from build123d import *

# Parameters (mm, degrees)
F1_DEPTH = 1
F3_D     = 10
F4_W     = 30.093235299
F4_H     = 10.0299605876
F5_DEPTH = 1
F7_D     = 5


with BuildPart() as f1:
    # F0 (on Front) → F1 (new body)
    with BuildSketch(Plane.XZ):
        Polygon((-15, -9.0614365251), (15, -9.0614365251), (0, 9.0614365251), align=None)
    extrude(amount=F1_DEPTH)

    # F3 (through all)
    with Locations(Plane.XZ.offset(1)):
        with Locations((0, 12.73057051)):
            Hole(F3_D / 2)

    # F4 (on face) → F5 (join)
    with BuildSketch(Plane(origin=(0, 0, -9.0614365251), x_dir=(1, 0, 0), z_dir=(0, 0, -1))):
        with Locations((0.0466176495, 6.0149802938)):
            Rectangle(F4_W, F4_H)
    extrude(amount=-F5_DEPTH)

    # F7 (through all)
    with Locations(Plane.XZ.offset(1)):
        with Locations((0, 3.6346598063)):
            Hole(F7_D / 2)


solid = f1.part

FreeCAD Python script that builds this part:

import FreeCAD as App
import Part
import Sketcher

doc = App.newDocument("Part")
body = doc.addObject("PartDesign::Body", "Body")

# Sketch on XZ plane
sketch1 = body.newObject("Sketcher::SketchObject", "Sketch")
sketch1.AttachmentSupport = (doc.getObject("XZ_Plane"), [""])
sketch1.MapMode = "FlatFace"
sketch1.addGeometry(Part.LineSegment(App.Vector(-15, -9, 0), App.Vector(15, -9, 0)), False)
sketch1.addGeometry(Part.LineSegment(App.Vector(15, -9, 0), App.Vector(0, 9, 0)), False)
sketch1.addGeometry(Part.LineSegment(App.Vector(0, 9, 0), App.Vector(-15, -9, 0)), False)
sketch1.addConstraint(Sketcher.Constraint("Coincident", 0, 2, 1, 1))
sketch1.addConstraint(Sketcher.Constraint("Coincident", 1, 2, 2, 1))
sketch1.addConstraint(Sketcher.Constraint("Coincident", 2, 2, 0, 1))
sketch1.addConstraint(Sketcher.Constraint("Horizontal", 0))
sketch1.addConstraint(Sketcher.Constraint("PointOnObject", 1, 2, -2))
sketch1.addConstraint(Sketcher.Constraint("Equal", 1, 2))
sketch1.addConstraint(Sketcher.Constraint("DistanceX", 0, 1, 0, 2, 30.0))
sketch1.addConstraint(Sketcher.Constraint("Distance", 1, 23.525274))
sketch1.addConstraint(Sketcher.Constraint("DistanceY", 0, 2, -1, 1, 9.061437))
pad1 = body.newObject("PartDesign::Pad", "Pad")
pad1.Profile = sketch1
pad1.Length = 1

# Sketch on XZ plane
sketch2 = body.newObject("Sketcher::SketchObject", "Sketch001")
sketch2.AttachmentSupport = (doc.getObject("XZ_Plane"), [""])
sketch2.MapMode = "FlatFace"
sketch2.AttachmentOffset = App.Placement(App.Vector(0, 0, 1), App.Rotation())
sketch2.addGeometry(Part.Circle(App.Vector(0, 13, 0), App.Vector(0, 0, 1), 5), False)
sketch2.addConstraint(Sketcher.Constraint("PointOnObject", 0, 3, -2))
sketch2.addConstraint(Sketcher.Constraint("Diameter", 0, 10.0))
sketch2.addConstraint(Sketcher.Constraint("DistanceY", -1, 1, 0, 3, 12.730571))
doc.recompute()
hole = body.newObject("PartDesign::Hole", "Hole")
hole.Profile = sketch2
hole.ThreadType = "None"
hole.Diameter = 10
hole.DepthType = "ThroughAll"

# Sketch on XY plane
sketch3 = body.newObject("Sketcher::SketchObject", "Sketch002")
sketch3.AttachmentSupport = (doc.getObject("XY_Plane"), [""])
sketch3.MapMode = "FlatFace"
sketch3.AttachmentOffset = App.Placement(App.Vector(0, 0, -9.061437), App.Rotation())
sketch3.addGeometry(Part.LineSegment(App.Vector(-15, -11, 0), App.Vector(-15, -1, 0)), False)
sketch3.addGeometry(Part.LineSegment(App.Vector(-15, -1, 0), App.Vector(15, -1, 0)), False)
sketch3.addGeometry(Part.LineSegment(App.Vector(15, -1, 0), App.Vector(15, -11, 0)), False)
sketch3.addGeometry(Part.LineSegment(App.Vector(15, -11, 0), App.Vector(-15, -11, 0)), False)
sketch3.addConstraint(Sketcher.Constraint("Coincident", 0, 2, 1, 1))
sketch3.addConstraint(Sketcher.Constraint("Coincident", 1, 2, 2, 1))
sketch3.addConstraint(Sketcher.Constraint("Coincident", 2, 2, 3, 1))
sketch3.addConstraint(Sketcher.Constraint("Coincident", 3, 2, 0, 1))
sketch3.addConstraint(Sketcher.Constraint("Vertical", 0))
sketch3.addConstraint(Sketcher.Constraint("Horizontal", 1))
sketch3.addConstraint(Sketcher.Constraint("Vertical", 2))
sketch3.addConstraint(Sketcher.Constraint("Horizontal", 3))
sketch3.addConstraint(Sketcher.Constraint("DistanceX", 0, 2, -1, 1, 15.0))
sketch3.addConstraint(Sketcher.Constraint("DistanceY", 0, 2, -1, 1, 1.0))
sketch3.addConstraint(Sketcher.Constraint("DistanceY", 0, 1, 0, 2, 10.029961))
sketch3.addConstraint(Sketcher.Constraint("DistanceX", 1, 1, 1, 2, 30.093235))
pad2 = body.newObject("PartDesign::Pad", "Pad001")
pad2.Profile = sketch3
pad2.Length = 1

# Sketch on XZ plane
sketch4 = body.newObject("Sketcher::SketchObject", "Sketch003")
sketch4.AttachmentSupport = (doc.getObject("XZ_Plane"), [""])
sketch4.MapMode = "FlatFace"
sketch4.AttachmentOffset = App.Placement(App.Vector(0, 0, 1), App.Rotation())
sketch4.addGeometry(Part.Circle(App.Vector(0, 3.6, 0), App.Vector(0, 0, 1), 2.5), False)
sketch4.addConstraint(Sketcher.Constraint("PointOnObject", 0, 3, -2))
sketch4.addConstraint(Sketcher.Constraint("Diameter", 0, 5.0))
sketch4.addConstraint(Sketcher.Constraint("DistanceY", -1, 1, 0, 3, 3.63466))
doc.recompute()
hole2 = body.newObject("PartDesign::Hole", "Hole001")
hole2.Profile = sketch4
hole2.ThreadType = "None"
hole2.Diameter = 5
hole2.DepthType = "ThroughAll"

doc.recompute()
